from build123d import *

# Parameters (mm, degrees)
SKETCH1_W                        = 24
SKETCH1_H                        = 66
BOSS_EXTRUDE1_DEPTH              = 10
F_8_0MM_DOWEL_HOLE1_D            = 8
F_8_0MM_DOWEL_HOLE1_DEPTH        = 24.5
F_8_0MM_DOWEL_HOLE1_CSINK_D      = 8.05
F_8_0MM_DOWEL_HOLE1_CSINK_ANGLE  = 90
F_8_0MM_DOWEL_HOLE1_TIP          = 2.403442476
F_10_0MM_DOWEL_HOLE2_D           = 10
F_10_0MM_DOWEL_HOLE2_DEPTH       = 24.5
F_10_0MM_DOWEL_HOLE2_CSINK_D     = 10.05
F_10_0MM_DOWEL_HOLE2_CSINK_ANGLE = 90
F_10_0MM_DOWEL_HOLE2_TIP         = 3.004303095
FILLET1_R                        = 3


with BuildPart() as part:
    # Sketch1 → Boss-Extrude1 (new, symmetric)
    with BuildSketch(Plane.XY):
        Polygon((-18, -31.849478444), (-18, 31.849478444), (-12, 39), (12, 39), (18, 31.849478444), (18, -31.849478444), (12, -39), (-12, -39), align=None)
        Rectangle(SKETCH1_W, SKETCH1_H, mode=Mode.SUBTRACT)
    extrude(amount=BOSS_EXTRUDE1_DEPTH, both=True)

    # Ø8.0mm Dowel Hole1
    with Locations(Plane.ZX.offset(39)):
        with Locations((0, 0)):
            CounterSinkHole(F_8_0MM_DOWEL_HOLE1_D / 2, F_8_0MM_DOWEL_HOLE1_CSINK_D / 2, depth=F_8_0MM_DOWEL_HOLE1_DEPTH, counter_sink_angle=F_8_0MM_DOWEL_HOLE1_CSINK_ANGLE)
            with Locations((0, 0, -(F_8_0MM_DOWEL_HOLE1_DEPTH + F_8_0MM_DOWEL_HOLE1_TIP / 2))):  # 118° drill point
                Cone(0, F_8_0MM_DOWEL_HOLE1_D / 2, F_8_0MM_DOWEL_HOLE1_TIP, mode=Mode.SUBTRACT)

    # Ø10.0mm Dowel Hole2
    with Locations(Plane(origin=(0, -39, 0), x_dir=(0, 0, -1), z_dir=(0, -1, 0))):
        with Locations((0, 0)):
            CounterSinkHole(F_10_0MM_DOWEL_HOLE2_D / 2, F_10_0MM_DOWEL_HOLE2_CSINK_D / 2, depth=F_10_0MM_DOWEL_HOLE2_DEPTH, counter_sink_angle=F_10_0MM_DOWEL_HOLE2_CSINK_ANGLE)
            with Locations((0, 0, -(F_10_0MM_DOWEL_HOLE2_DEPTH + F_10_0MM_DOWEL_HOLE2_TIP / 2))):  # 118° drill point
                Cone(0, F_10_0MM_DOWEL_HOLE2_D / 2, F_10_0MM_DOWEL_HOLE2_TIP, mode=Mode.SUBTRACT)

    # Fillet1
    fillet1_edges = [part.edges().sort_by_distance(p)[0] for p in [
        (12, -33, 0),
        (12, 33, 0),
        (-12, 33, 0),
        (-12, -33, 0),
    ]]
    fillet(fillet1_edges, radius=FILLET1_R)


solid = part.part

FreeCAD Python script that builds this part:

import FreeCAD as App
import Part
import Sketcher
from FreeCAD import Vector
Q = App.Units.Quantity


def edges_at(feature, points):
    """Names of the edges that pass closest to the given points."""
    edges = feature.Shape.Edges
    near = lambda p: min(range(len(edges)), key=lambda i: edges[i].distToShape(Part.Vertex(*p))[0])
    return sorted({f"Edge{near(p) + 1}" for p in points})


def add_polygon(sketch, points):
    """Adds a closed chain of lines whose ends are joined by coincident constraints."""
    first, n = sketch.GeometryCount, len(points)
    for a, b in zip(points, points[1:] + points[:1]):
        sketch.addGeometry(Part.LineSegment(App.Vector(*a, 0), App.Vector(*b, 0)), False)
    for i in range(n):
        sketch.addConstraint(Sketcher.Constraint("Coincident", first + i, 2, first + (i + 1) % n, 1))

doc = App.newDocument("Part")
body = doc.addObject("PartDesign::Body", "Body")

sketch1 = body.newObject("Sketcher::SketchObject", "Sketch")
sketch1.AttachmentSupport = (doc.getObject("XY_Plane"), [""])
sketch1.MapMode = "FlatFace"
add_polygon(sketch1, [(-18, 32), (-18, -32), (-12, -39), (12, -39), (18, -32), (18, 32), (12, 39), (-12, 39)])
add_polygon(sketch1, [(-12, -33), (-12, 33), (12, 33), (12, -33)])
sketch1.addConstraint([
    Sketcher.Constraint("Vertical", 0),
    Sketcher.Constraint("Horizontal", 2),
    Sketcher.Constraint("Vertical", 4),
    Sketcher.Constraint("Horizontal", 6),
    Sketcher.Constraint("Vertical", 8),
    Sketcher.Constraint("Horizontal", 9),
    Sketcher.Constraint("Vertical", 10),
    Sketcher.Constraint("Horizontal", 11),
    Sketcher.Constraint("Symmetric", 0, 2, 4, 2, -1, 1),
    Sketcher.Constraint("Symmetric", 1, 2, 5, 2, -1, 1),
    Sketcher.Constraint("Symmetric", 8, 2, 10, 2, -1, 1),
    Sketcher.Constraint("Parallel", 3, 7),
    Sketcher.Constraint("Horizontal", 0, 2, 3, 2),
    Sketcher.Constraint("Horizontal", 4, 2, 7, 2),
    Sketcher.Constraint("Vertical", 2, 2, 5, 2),
    Sketcher.Constraint("Vertical", 6, 2, 8, 2),
    Sketcher.Constraint("DistanceX", 2, 1, 2, 2, 24.0),
    Sketcher.Constraint("DistanceY", 8, 1, 8, 2, 66.0),
    Sketcher.Constraint("Angle", 1, Q("-50 deg")),
    Sketcher.Constraint("DistanceX", 0, 2, -1, 1, 18.0),
    Sketcher.Constraint("DistanceY", 1, 2, -1, 1, 39.0),
])
pad1 = body.newObject("PartDesign::Pad", "Pad")
pad1.Profile = sketch1
pad1.Length = 20
pad1.Midplane = True

sketch2 = body.newObject("Sketcher::SketchObject", "Sketch001")
sketch2.AttachmentSupport = (doc.getObject("XZ_Plane"), [""])
sketch2.MapMode = "FlatFace"
sketch2.AttachmentOffset = App.Placement(Vector(0, 0, -39), App.Rotation())
sketch2.addGeometry(Part.Circle(Vector(0, 0, 0), Vector(0, 0, 1), 4), False)
sketch2.addConstraint([
    Sketcher.Constraint("Coincident", 0, 3, -1, 1),
    Sketcher.Constraint("Diameter", 0, 8.0),
])
doc.recompute()
hole = body.newObject("PartDesign::Hole", "Hole")
hole.Profile = sketch2
hole.ThreadType = "None"
hole.Diameter = 8
hole.DepthType = "Dimension"
hole.Depth = 24.5
hole.DrillPoint = "Angled"
hole.DrillPointAngle = 118
hole.HoleCutType = "Countersink"
hole.HoleCutDiameter = 8.05
hole.HoleCutCountersinkAngle = 90
hole.Reversed = True

sketch3 = body.newObject("Sketcher::SketchObject", "Sketch002")
sketch3.AttachmentSupport = (doc.getObject("XZ_Plane"), [""])
sketch3.MapMode = "FlatFace"
sketch3.AttachmentOffset = App.Placement(Vector(0, 0, 39), App.Rotation())
sketch3.addGeometry(Part.Circle(Vector(0, 0, 0), Vector(0, 0, 1), 5), False)
sketch3.addConstraint([
    Sketcher.Constraint("Coincident", 0, 3, -1, 1),
    Sketcher.Constraint("Diameter", 0, 10.0),
])
doc.recompute()
hole2 = body.newObject("PartDesign::Hole", "Hole001")
hole2.Profile = sketch3
hole2.ThreadType = "None"
hole2.Diameter = 10
hole2.DepthType = "Dimension"
hole2.Depth = 24.5
hole2.DrillPoint = "Angled"
hole2.DrillPointAngle = 118
hole2.HoleCutType = "Countersink"
hole2.HoleCutDiameter = 10.05
hole2.HoleCutCountersinkAngle = 90
doc.recompute()

fillet = body.newObject("PartDesign::Fillet", "Fillet")
fillet.Base = (hole2, edges_at(hole2, [
    (12, -33, 0),
    (12, 33, 0),
    (-12, 33, 0),
    (-12, -33, 0),
]))
fillet.Radius = 3

doc.recompute()
